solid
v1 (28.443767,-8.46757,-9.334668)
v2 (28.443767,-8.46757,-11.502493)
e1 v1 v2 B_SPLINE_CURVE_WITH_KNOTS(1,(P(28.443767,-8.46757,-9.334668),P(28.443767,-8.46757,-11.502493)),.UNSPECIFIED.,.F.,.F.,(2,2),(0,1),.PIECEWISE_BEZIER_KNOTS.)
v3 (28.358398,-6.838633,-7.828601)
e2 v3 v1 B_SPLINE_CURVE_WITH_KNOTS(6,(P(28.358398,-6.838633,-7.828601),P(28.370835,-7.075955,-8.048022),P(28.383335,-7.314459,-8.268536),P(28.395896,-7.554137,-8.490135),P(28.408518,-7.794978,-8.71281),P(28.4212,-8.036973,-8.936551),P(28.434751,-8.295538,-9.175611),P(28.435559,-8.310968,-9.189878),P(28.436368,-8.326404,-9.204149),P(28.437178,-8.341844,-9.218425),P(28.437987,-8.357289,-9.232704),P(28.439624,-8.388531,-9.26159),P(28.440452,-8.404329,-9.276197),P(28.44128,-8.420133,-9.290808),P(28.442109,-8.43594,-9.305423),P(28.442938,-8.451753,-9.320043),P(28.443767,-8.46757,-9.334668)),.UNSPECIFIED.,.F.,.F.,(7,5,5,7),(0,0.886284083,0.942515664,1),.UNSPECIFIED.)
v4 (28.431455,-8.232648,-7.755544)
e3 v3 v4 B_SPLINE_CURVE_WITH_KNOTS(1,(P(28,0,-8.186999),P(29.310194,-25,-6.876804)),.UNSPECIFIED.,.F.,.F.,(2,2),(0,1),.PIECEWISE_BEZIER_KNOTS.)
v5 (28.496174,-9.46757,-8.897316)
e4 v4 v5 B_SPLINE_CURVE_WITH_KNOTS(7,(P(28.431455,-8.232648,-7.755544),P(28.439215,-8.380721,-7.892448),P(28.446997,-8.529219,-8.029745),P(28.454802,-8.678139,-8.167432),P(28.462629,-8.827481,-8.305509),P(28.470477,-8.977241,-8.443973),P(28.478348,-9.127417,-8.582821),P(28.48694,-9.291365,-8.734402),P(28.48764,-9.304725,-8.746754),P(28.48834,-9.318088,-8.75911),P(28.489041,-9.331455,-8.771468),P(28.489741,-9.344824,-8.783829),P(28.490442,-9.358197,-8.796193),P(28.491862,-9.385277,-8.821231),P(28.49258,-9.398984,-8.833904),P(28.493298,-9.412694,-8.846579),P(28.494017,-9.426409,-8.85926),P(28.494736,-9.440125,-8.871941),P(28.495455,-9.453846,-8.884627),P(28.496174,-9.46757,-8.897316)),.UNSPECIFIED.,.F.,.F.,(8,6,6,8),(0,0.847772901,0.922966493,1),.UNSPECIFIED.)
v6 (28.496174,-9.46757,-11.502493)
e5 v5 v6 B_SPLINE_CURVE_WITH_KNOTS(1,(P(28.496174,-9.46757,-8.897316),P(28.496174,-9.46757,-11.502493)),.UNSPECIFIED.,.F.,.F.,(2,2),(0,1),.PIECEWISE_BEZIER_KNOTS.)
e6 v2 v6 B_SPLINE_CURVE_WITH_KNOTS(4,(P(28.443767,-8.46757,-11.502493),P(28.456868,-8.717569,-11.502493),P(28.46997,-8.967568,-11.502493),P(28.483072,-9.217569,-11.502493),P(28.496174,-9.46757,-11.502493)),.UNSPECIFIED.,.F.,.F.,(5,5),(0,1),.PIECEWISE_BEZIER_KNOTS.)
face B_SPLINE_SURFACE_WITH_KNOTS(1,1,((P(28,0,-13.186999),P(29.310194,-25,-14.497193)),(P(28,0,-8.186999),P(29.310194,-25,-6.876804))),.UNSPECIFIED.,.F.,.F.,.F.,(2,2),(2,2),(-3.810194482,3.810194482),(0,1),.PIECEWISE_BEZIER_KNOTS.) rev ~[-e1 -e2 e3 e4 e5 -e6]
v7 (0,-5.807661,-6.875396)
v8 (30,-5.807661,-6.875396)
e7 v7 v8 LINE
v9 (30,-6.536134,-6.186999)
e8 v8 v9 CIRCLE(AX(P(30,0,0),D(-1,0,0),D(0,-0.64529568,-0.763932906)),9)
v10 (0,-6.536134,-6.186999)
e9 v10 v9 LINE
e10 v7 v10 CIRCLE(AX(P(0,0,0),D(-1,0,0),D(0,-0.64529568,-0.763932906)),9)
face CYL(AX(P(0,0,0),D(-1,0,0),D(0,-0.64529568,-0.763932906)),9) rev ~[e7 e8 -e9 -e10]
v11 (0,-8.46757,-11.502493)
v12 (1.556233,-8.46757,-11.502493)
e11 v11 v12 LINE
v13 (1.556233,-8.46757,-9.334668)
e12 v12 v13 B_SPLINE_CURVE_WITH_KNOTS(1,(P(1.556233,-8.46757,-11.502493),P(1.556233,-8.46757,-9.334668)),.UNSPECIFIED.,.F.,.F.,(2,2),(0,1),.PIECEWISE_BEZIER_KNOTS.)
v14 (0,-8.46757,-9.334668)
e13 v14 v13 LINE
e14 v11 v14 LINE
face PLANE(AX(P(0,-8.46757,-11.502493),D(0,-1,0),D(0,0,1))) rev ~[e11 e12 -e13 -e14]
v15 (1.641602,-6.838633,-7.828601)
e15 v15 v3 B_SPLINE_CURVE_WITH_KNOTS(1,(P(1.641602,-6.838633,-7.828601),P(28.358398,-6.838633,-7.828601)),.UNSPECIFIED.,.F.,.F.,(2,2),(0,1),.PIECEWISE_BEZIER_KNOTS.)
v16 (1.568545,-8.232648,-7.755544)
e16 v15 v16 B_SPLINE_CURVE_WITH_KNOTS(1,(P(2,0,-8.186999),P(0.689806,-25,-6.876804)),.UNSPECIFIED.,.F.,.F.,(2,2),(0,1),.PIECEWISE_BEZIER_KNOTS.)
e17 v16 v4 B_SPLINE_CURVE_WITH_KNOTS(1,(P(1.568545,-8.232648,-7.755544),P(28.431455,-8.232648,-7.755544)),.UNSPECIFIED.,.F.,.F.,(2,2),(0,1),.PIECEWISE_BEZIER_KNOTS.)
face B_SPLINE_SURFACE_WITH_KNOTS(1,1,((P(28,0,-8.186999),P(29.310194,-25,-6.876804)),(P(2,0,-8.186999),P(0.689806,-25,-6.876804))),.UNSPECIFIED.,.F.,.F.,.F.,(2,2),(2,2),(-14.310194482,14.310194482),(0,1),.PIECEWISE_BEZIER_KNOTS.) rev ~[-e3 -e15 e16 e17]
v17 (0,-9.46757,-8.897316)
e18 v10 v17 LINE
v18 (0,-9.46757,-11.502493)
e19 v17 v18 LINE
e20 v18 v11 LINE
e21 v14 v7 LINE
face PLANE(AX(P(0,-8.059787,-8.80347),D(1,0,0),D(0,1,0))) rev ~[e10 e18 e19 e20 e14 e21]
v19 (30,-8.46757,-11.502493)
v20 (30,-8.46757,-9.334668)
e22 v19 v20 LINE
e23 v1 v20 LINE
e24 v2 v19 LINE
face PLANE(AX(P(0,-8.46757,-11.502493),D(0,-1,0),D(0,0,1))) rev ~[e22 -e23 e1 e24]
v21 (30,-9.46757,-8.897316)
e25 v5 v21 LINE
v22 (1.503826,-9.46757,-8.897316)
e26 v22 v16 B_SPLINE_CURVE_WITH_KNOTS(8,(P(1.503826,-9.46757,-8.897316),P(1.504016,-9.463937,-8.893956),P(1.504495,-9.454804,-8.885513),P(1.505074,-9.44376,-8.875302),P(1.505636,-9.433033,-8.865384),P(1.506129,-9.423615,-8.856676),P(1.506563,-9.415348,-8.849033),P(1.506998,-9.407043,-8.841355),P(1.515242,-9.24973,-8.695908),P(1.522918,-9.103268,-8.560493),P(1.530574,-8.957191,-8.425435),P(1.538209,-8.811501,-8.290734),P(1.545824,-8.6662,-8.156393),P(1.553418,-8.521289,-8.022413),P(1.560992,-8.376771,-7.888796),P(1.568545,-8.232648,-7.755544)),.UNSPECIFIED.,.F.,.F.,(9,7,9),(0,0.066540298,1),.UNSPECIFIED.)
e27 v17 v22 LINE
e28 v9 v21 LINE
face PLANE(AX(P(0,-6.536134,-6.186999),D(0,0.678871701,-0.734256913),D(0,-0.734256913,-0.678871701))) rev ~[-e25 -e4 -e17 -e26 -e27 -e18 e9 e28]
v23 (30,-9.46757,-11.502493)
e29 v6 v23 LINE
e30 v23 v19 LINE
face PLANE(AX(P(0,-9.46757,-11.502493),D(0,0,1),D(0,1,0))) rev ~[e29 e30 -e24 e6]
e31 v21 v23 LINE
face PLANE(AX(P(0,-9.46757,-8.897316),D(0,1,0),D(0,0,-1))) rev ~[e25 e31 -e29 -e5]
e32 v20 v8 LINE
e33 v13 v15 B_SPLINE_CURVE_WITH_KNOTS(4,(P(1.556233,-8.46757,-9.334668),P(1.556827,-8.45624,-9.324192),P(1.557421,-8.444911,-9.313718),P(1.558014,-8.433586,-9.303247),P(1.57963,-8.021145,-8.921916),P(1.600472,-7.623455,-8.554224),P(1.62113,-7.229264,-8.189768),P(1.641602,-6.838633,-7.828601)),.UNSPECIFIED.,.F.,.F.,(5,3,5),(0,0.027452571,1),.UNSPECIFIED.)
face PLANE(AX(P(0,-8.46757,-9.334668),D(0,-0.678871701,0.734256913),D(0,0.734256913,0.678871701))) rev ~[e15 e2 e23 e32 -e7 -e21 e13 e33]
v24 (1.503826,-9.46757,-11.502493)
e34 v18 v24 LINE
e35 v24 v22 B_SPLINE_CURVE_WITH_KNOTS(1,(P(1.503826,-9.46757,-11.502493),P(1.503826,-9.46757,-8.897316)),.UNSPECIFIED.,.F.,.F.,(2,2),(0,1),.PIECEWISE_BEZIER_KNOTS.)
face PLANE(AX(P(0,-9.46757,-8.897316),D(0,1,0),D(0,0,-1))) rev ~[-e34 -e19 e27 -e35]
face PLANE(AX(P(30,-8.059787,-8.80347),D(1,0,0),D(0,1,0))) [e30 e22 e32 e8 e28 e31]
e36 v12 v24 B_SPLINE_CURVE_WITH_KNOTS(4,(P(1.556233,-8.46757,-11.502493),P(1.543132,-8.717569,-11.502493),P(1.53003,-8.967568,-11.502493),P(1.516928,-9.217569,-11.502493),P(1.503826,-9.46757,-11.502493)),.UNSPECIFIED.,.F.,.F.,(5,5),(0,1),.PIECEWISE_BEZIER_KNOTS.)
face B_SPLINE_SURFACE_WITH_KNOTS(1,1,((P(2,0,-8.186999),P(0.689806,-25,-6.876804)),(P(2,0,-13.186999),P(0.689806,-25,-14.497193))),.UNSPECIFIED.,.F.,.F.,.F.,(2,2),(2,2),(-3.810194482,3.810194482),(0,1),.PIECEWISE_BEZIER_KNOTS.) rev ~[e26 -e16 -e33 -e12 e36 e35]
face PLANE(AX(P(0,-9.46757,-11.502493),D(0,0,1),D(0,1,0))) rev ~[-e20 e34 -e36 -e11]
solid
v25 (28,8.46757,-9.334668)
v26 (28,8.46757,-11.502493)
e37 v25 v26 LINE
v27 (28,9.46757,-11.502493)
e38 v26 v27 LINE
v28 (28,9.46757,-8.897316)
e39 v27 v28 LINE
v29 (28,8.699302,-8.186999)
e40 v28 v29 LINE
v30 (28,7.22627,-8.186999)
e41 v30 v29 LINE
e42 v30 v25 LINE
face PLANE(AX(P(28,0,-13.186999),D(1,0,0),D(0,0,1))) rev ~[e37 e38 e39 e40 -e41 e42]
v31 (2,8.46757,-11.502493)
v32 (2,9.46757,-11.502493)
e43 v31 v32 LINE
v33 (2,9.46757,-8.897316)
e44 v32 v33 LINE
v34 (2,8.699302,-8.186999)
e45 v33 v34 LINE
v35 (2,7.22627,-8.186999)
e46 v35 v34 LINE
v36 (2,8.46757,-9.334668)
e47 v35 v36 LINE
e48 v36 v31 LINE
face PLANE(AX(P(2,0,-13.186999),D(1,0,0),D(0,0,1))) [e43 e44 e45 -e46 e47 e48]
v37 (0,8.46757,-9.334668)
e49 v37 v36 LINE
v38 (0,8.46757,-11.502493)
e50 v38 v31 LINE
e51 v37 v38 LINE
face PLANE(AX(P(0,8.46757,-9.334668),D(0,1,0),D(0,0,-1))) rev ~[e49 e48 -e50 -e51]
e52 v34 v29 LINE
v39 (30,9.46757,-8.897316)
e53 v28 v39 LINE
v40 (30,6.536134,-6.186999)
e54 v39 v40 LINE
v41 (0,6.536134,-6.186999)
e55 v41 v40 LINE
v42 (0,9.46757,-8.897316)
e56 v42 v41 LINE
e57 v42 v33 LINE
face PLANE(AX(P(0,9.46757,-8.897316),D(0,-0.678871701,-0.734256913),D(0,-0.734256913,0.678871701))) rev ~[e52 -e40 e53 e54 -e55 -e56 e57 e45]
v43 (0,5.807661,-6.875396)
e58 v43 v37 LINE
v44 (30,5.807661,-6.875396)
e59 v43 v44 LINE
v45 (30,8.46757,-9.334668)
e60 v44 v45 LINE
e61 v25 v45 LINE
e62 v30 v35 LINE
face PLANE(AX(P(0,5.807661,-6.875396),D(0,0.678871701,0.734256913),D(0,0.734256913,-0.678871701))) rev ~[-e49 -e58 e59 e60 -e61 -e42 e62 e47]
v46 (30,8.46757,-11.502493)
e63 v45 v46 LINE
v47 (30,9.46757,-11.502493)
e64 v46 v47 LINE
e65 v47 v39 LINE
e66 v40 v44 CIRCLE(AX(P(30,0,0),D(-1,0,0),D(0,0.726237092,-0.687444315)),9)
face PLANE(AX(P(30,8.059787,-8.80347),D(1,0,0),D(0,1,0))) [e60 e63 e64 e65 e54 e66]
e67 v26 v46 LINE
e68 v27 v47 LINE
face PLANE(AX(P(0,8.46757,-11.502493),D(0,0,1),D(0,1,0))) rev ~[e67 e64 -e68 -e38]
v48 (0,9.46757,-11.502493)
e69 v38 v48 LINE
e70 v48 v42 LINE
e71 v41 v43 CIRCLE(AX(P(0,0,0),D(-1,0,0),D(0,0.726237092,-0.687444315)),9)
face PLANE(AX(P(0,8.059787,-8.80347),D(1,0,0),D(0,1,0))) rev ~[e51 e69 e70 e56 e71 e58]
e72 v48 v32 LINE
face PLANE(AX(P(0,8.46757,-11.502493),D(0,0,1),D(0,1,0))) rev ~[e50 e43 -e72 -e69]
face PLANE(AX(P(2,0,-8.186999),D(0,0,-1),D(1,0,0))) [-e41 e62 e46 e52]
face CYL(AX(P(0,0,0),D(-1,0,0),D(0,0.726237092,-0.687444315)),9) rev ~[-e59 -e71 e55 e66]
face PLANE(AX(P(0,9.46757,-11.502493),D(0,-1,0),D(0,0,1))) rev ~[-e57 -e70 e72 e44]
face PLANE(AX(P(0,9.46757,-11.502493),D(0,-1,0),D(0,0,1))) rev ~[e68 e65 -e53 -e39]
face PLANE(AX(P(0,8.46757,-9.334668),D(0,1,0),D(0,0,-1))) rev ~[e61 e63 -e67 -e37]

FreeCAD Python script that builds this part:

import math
import FreeCAD as App
import Part
import Sketcher
from FreeCAD import Vector

doc = App.newDocument("Part")
body = doc.addObject("PartDesign::Body", "Body")

# Sketch on YZ plane
sketch1 = body.newObject("Sketcher::SketchObject", "Sketch")
sketch1.AttachmentSupport = (doc.getObject("YZ_Plane"), [""])
sketch1.MapMode = "FlatFace"
sketch1.addGeometry([
    Part.ArcOfCircle(Part.Circle(Vector(0, 0, 0), Vector(0, 0, 1), 9), math.radians(-49.81), math.radians(-43.43)),  # 0
    Part.LineSegment(Vector(5.8, -6.9, 0), Vector(8.5, -9.3, 0)),  # 1
    Part.LineSegment(Vector(8.5, -9.3, 0), Vector(8.5, -11.5, 0)),  # 2
    Part.LineSegment(Vector(8.5, -11.5, 0), Vector(9.5, -11.5, 0)),  # 3
    Part.LineSegment(Vector(9.5, -11.5, 0), Vector(9.5, -8.9, 0)),  # 4
    Part.LineSegment(Vector(9.5, -8.9, 0), Vector(6.5, -6.2, 0)),  # 5
], False)
sketch1.addConstraint([
    Sketcher.Constraint("Coincident", 0, 1, 1, 1),
    Sketcher.Constraint("Coincident", 1, 2, 2, 1),
    Sketcher.Constraint("Coincident", 2, 2, 3, 1),
    Sketcher.Constraint("Coincident", 3, 2, 4, 1),
    Sketcher.Constraint("Coincident", 4, 2, 5, 1),
    Sketcher.Constraint("Coincident", 5, 2, 0, 2),
    Sketcher.Constraint("Vertical", 2),
    Sketcher.Constraint("Horizontal", 3),
    Sketcher.Constraint("Vertical", 4),
    Sketcher.Constraint("Coincident", 0, 3, -1, 1),
    Sketcher.Constraint("Parallel", 1, 5),
    Sketcher.Constraint("Radius", 0, 9.0),
    Sketcher.Constraint("DistanceX", 3, 1, 3, 2, 1.0),
    Sketcher.Constraint("DistanceY", 5, 2, -1, 1, 6.186999),
    Sketcher.Constraint("DistanceY", 2, 2, 2, 1, 2.167826),
    Sketcher.Constraint("DistanceY", 4, 1, 4, 2, 2.605177),
    Sketcher.Constraint("DistanceX", -1, 1, 0, 1, 5.807661),
    Sketcher.Constraint("DistanceX", -1, 1, 1, 2, 8.46757),
])
pad1 = body.newObject("PartDesign::Pad", "Pad")
pad1.Profile = sketch1
pad1.Length = 30

# Sketch on XZ plane
sketch2 = body.newObject("Sketcher::SketchObject", "Sketch001")
sketch2.AttachmentSupport = (doc.getObject("XZ_Plane"), [""])
sketch2.MapMode = "FlatFace"
sketch2.addGeometry([
    Part.LineSegment(Vector(2, -8, 0), Vector(2, -13, 0)),
    Part.LineSegment(Vector(2, -13, 0), Vector(28, -13, 0)),
    Part.LineSegment(Vector(28, -13, 0), Vector(28, -8, 0)),
    Part.LineSegment(Vector(28, -8, 0), Vector(2, -8, 0)),
], False)
sketch2.addConstraint([
    Sketcher.Constraint("Coincident", 0, 2, 1, 1),
    Sketcher.Constraint("Coincident", 1, 2, 2, 1),
    Sketcher.Constraint("Coincident", 2, 2, 3, 1),
    Sketcher.Constraint("Coincident", 3, 2, 0, 1),
    Sketcher.Constraint("Vertical", 0),
    Sketcher.Constraint("Horizontal", 1),
    Sketcher.Constraint("Vertical", 2),
    Sketcher.Constraint("Horizontal", 3),
    Sketcher.Constraint("DistanceX", 1, 1, 1, 2, 26.0),
    Sketcher.Constraint("DistanceY", 0, 2, 0, 1, 5.0),
    Sketcher.Constraint("DistanceX", -1, 1, 0, 2, 2.0),
    Sketcher.Constraint("DistanceY", 0, 2, -1, 1, 13.186999),
])
pocket1 = body.newObject("PartDesign::Pocket", "Pocket")
pocket1.Profile = sketch2
pocket1.Length = 25
body2 = doc.addObject("PartDesign::Body", "Body001")

# Sketch on YZ plane
sketch3 = body2.newObject("Sketcher::SketchObject", "Sketch002")
sketch3.AttachmentSupport = (doc.getObject("YZ_Plane001"), [""])
sketch3.MapMode = "FlatFace"
sketch3.addGeometry([
    Part.ArcOfCircle(Part.Circle(Vector(0, 0, 0), Vector(0, 0, 1), 9), math.radians(-136.57), math.radians(-130.19)),  # 0
    Part.LineSegment(Vector(-6.5, -6.2, 0), Vector(-9.5, -8.9, 0)),  # 1
    Part.LineSegment(Vector(-9.5, -8.9, 0), Vector(-9.5, -11.5, 0)),  # 2
    Part.LineSegment(Vector(-9.5, -11.5, 0), Vector(-8.5, -11.5, 0)),  # 3
    Part.LineSegment(Vector(-8.5, -11.5, 0), Vector(-8.5, -9.3, 0)),  # 4
    Part.LineSegment(Vector(-8.5, -9.3, 0), Vector(-5.8, -6.9, 0)),  # 5
], False)
sketch3.addConstraint([
    Sketcher.Constraint("Coincident", 0, 1, 1, 1),
    Sketcher.Constraint("Coincident", 1, 2, 2, 1),
    Sketcher.Constraint("Coincident", 2, 2, 3, 1),
    Sketcher.Constraint("Coincident", 3, 2, 4, 1),
    Sketcher.Constraint("Coincident", 4, 2, 5, 1),
    Sketcher.Constraint("Coincident", 5, 2, 0, 2),
    Sketcher.Constraint("Vertical", 2),
    Sketcher.Constraint("Horizontal", 3),
    Sketcher.Constraint("Vertical", 4),
    Sketcher.Constraint("Coincident", 0, 3, -1, 1),
    Sketcher.Constraint("Parallel", 1, 5),
    Sketcher.Constraint("Radius", 0, 9.0),
    Sketcher.Constraint("DistanceX", 3, 1, 3, 2, 1.0),
    Sketcher.Constraint("DistanceY", 0, 1, -1, 1, 6.186999),
    Sketcher.Constraint("DistanceY", 2, 2, 2, 1, 2.605177),
    Sketcher.Constraint("DistanceY", 4, 1, 4, 2, 2.167826),
    Sketcher.Constraint("DistanceX", 1, 2, -1, 1, 9.46757),
    Sketcher.Constraint("DistanceX", 5, 2, -1, 1, 5.807661),
])
pad2 = body2.newObject("PartDesign::Pad", "Pad001")
pad2.Profile = sketch3
pad2.Length = 30

# Sketch on XZ plane
sketch4 = body2.newObject("Sketcher::SketchObject", "Sketch003")
sketch4.AttachmentSupport = (doc.getObject("XZ_Plane001"), [""])
sketch4.MapMode = "FlatFace"
sketch4.addGeometry([
    Part.LineSegment(Vector(2, -8, 0), Vector(2, -13, 0)),
    Part.LineSegment(Vector(2, -13, 0), Vector(28, -13, 0)),
    Part.LineSegment(Vector(28, -13, 0), Vector(28, -8, 0)),
    Part.LineSegment(Vector(28, -8, 0), Vector(2, -8, 0)),
], False)
sketch4.addConstraint([
    Sketcher.Constraint("Coincident", 0, 2, 1, 1),
    Sketcher.Constraint("Coincident", 1, 2, 2, 1),
    Sketcher.Constraint("Coincident", 2, 2, 3, 1),
    Sketcher.Constraint("Coincident", 3, 2, 0, 1),
    Sketcher.Constraint("Vertical", 0),
    Sketcher.Constraint("Horizontal", 1),
    Sketcher.Constraint("Vertical", 2),
    Sketcher.Constraint("Horizontal", 3),
    Sketcher.Constraint("DistanceX", 1, 1, 1, 2, 26.0),
    Sketcher.Constraint("DistanceY", 0, 2, 0, 1, 5.0),
    Sketcher.Constraint("DistanceX", -1, 1, 0, 2, 2.0),
    Sketcher.Constraint("DistanceY", 0, 2, -1, 1, 13.186999),
])
pocket2 = body2.newObject("PartDesign::Pocket", "Pocket001")
pocket2.Profile = sketch4
pocket2.Length = 25
pocket2.Reversed = True
pocket2.TaperAngle = 3

doc.recompute()
